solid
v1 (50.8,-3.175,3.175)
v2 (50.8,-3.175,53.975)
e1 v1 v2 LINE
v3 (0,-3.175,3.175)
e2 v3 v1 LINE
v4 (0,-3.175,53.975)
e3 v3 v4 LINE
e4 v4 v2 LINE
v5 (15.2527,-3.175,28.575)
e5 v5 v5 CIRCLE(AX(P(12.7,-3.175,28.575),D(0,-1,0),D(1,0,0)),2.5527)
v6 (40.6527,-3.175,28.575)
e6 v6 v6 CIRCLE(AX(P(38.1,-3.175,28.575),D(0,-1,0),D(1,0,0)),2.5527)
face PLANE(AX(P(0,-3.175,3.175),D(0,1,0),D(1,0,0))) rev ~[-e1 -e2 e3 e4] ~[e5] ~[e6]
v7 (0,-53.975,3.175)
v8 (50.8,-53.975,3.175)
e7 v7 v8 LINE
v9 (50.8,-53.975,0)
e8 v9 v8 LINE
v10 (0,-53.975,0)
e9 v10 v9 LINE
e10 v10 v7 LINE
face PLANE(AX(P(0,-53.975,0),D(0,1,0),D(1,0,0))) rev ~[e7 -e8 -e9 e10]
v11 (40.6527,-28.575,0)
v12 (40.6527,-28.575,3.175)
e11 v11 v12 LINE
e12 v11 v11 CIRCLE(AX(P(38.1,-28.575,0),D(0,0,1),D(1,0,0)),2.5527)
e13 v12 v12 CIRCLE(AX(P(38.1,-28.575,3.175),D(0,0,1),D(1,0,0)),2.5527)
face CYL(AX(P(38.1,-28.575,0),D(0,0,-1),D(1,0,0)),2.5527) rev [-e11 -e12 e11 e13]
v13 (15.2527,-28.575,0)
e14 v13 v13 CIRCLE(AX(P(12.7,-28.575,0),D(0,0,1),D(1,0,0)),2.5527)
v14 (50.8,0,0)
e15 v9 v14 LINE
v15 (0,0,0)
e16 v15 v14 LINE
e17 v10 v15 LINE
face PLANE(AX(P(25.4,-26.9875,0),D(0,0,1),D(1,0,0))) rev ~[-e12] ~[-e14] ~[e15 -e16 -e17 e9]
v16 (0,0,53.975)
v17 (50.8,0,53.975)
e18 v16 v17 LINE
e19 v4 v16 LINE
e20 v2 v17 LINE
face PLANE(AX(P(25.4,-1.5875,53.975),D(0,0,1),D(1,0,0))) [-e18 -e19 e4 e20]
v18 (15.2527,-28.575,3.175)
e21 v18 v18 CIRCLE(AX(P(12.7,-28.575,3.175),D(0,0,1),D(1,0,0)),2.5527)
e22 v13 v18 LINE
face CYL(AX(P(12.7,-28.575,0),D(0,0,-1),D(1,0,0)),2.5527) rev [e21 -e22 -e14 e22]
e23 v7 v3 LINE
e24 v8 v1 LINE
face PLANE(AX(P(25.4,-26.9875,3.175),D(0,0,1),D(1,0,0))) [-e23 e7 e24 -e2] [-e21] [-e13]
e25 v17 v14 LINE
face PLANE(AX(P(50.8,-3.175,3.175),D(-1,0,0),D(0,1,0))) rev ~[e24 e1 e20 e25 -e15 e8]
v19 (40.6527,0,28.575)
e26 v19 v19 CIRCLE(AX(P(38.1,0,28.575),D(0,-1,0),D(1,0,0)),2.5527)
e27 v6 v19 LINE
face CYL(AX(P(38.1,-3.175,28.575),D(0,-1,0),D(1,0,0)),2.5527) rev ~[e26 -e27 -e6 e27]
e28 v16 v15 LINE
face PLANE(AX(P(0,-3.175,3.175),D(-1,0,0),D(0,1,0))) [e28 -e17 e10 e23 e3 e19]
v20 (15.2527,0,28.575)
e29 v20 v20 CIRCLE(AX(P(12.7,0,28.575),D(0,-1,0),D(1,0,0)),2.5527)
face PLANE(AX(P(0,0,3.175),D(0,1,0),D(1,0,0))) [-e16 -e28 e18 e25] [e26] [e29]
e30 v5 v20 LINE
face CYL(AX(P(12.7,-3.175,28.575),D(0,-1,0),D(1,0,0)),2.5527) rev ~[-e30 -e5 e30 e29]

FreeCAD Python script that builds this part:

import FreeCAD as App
import Part
import Sketcher
Q = App.Units.Quantity


def add_polygon(sketch, points):
    """Adds a closed chain of lines whose ends are joined by coincident constraints."""
    first, n = sketch.GeometryCount, len(points)
    for a, b in zip(points, points[1:] + points[:1]):
        sketch.addGeometry(Part.LineSegment(App.Vector(*a, 0), App.Vector(*b, 0)), False)
    for i in range(n):
        sketch.addConstraint(Sketcher.Constraint("Coincident", first + i, 2, first + (i + 1) % n, 1))

doc = App.newDocument("Part")
body = doc.addObject("PartDesign::Body", "Body")

# Sketch on XY plane
sketch1 = doc.addObject("Sketcher::SketchObject", "Sketch")
body.addObject(sketch1)
sketch1.AttachmentSupport = (doc.XY_Plane, [""])
sketch1.MapMode = "FlatFace"
add_polygon(sketch1, [(0, 0), (0, -54), (50.8, -54), (50.8, 0)])  # lines 0-3
sketch1.addGeometry(Part.Circle(App.Vector(12.7, -28.6, 0), App.Vector(0, 0, 1), 2.6), False)  # 4
sketch1.addGeometry(Part.Circle(App.Vector(38.1, -28.6, 0), App.Vector(0, 0, 1), 2.6), False)  # 5
sketch1.addConstraint([
    Sketcher.Constraint("Vertical", 0),
    Sketcher.Constraint("Horizontal", 1),
    Sketcher.Constraint("Vertical", 2),
    Sketcher.Constraint("Horizontal", 3),
    Sketcher.Constraint("Coincident", 3, 2, -1, 1),
    Sketcher.Constraint("Equal", 4, 5),
    Sketcher.Constraint("Horizontal", 4, 3, 5, 3),
    Sketcher.Constraint("DistanceX", 1, 1, 1, 2, Q("2 in")),
    Sketcher.Constraint("Diameter", 4, Q("0.201 in")),
    Sketcher.Constraint("DistanceX", 4, 3, 5, 3, Q("1 in")),
    Sketcher.Constraint("DistanceY", 0, 2, 4, 3, Q("1 in")),
    Sketcher.Constraint("DistanceX", -1, 1, 4, 3, Q("0.5 in")),
    Sketcher.Constraint("DistanceY", 0, 2, 0, 1, Q("2.125 in")),
])
pad1 = doc.addObject("PartDesign::Pad", "Pad")
body.addObject(pad1)
pad1.Profile = sketch1
pad1.Length = Q("0.125 in")

# Sketch on XY plane
sketch2 = doc.addObject("Sketcher::SketchObject", "Sketch001")
body.addObject(sketch2)
sketch2.AttachmentSupport = (doc.XY_Plane, [""])
sketch2.MapMode = "FlatFace"
sketch2.AttachmentOffset = App.Placement(App.Vector(0, 0, 0.125 * 25.4), App.Rotation())
add_polygon(sketch2, [(0, 0), (0, -3.2), (50.8, -3.2), (50.8, 0)])  # lines 0-3
sketch2.addConstraint([
    Sketcher.Constraint("Vertical", 0),
    Sketcher.Constraint("Horizontal", 1),
    Sketcher.Constraint("Vertical", 2),
    Sketcher.Constraint("Horizontal", 3),
    Sketcher.Constraint("Coincident", 3, 2, -1, 1),
    Sketcher.Constraint("DistanceX", 1, 1, 1, 2, Q("2 in")),
    Sketcher.Constraint("DistanceY", 0, 2, 0, 1, Q("0.125 in")),
])
pad2 = doc.addObject("PartDesign::Pad", "Pad001")
body.addObject(pad2)
pad2.Profile = sketch2
pad2.Length = Q("2 in")

# Sketch on XZ plane
sketch3 = doc.addObject("Sketcher::SketchObject", "Sketch002")
body.addObject(sketch3)
sketch3.AttachmentSupport = (doc.XZ_Plane, [""])
sketch3.MapMode = "FlatFace"
sketch3.AttachmentOffset = App.Placement(App.Vector(0, 0, 0.125 * 25.4), App.Rotation())
sketch3.addGeometry([
    Part.Circle(App.Vector(12.7, 28.6, 0), App.Vector(0, 0, 1), 2.6),
    Part.Circle(App.Vector(38.1, 28.6, 0), App.Vector(0, 0, 1), 2.6),
], False)
sketch3.addConstraint([
    Sketcher.Constraint("Equal", 0, 1),
    Sketcher.Constraint("Horizontal", 0, 3, 1, 3),
    Sketcher.Constraint("Diameter", 0, Q("0.201 in")),
    Sketcher.Constraint("DistanceX", 0, 3, 1, 3, Q("1 in")),
    Sketcher.Constraint("DistanceX", -1, 1, 0, 3, Q("0.5 in")),
    Sketcher.Constraint("DistanceY", -1, 1, 0, 3, Q("1.125 in")),
])
pocket1 = doc.addObject("PartDesign::Pocket", "Pocket")
body.addObject(pocket1)
pocket1.Profile = sketch3
pocket1.Length = Q("1 in")

doc.recompute()
